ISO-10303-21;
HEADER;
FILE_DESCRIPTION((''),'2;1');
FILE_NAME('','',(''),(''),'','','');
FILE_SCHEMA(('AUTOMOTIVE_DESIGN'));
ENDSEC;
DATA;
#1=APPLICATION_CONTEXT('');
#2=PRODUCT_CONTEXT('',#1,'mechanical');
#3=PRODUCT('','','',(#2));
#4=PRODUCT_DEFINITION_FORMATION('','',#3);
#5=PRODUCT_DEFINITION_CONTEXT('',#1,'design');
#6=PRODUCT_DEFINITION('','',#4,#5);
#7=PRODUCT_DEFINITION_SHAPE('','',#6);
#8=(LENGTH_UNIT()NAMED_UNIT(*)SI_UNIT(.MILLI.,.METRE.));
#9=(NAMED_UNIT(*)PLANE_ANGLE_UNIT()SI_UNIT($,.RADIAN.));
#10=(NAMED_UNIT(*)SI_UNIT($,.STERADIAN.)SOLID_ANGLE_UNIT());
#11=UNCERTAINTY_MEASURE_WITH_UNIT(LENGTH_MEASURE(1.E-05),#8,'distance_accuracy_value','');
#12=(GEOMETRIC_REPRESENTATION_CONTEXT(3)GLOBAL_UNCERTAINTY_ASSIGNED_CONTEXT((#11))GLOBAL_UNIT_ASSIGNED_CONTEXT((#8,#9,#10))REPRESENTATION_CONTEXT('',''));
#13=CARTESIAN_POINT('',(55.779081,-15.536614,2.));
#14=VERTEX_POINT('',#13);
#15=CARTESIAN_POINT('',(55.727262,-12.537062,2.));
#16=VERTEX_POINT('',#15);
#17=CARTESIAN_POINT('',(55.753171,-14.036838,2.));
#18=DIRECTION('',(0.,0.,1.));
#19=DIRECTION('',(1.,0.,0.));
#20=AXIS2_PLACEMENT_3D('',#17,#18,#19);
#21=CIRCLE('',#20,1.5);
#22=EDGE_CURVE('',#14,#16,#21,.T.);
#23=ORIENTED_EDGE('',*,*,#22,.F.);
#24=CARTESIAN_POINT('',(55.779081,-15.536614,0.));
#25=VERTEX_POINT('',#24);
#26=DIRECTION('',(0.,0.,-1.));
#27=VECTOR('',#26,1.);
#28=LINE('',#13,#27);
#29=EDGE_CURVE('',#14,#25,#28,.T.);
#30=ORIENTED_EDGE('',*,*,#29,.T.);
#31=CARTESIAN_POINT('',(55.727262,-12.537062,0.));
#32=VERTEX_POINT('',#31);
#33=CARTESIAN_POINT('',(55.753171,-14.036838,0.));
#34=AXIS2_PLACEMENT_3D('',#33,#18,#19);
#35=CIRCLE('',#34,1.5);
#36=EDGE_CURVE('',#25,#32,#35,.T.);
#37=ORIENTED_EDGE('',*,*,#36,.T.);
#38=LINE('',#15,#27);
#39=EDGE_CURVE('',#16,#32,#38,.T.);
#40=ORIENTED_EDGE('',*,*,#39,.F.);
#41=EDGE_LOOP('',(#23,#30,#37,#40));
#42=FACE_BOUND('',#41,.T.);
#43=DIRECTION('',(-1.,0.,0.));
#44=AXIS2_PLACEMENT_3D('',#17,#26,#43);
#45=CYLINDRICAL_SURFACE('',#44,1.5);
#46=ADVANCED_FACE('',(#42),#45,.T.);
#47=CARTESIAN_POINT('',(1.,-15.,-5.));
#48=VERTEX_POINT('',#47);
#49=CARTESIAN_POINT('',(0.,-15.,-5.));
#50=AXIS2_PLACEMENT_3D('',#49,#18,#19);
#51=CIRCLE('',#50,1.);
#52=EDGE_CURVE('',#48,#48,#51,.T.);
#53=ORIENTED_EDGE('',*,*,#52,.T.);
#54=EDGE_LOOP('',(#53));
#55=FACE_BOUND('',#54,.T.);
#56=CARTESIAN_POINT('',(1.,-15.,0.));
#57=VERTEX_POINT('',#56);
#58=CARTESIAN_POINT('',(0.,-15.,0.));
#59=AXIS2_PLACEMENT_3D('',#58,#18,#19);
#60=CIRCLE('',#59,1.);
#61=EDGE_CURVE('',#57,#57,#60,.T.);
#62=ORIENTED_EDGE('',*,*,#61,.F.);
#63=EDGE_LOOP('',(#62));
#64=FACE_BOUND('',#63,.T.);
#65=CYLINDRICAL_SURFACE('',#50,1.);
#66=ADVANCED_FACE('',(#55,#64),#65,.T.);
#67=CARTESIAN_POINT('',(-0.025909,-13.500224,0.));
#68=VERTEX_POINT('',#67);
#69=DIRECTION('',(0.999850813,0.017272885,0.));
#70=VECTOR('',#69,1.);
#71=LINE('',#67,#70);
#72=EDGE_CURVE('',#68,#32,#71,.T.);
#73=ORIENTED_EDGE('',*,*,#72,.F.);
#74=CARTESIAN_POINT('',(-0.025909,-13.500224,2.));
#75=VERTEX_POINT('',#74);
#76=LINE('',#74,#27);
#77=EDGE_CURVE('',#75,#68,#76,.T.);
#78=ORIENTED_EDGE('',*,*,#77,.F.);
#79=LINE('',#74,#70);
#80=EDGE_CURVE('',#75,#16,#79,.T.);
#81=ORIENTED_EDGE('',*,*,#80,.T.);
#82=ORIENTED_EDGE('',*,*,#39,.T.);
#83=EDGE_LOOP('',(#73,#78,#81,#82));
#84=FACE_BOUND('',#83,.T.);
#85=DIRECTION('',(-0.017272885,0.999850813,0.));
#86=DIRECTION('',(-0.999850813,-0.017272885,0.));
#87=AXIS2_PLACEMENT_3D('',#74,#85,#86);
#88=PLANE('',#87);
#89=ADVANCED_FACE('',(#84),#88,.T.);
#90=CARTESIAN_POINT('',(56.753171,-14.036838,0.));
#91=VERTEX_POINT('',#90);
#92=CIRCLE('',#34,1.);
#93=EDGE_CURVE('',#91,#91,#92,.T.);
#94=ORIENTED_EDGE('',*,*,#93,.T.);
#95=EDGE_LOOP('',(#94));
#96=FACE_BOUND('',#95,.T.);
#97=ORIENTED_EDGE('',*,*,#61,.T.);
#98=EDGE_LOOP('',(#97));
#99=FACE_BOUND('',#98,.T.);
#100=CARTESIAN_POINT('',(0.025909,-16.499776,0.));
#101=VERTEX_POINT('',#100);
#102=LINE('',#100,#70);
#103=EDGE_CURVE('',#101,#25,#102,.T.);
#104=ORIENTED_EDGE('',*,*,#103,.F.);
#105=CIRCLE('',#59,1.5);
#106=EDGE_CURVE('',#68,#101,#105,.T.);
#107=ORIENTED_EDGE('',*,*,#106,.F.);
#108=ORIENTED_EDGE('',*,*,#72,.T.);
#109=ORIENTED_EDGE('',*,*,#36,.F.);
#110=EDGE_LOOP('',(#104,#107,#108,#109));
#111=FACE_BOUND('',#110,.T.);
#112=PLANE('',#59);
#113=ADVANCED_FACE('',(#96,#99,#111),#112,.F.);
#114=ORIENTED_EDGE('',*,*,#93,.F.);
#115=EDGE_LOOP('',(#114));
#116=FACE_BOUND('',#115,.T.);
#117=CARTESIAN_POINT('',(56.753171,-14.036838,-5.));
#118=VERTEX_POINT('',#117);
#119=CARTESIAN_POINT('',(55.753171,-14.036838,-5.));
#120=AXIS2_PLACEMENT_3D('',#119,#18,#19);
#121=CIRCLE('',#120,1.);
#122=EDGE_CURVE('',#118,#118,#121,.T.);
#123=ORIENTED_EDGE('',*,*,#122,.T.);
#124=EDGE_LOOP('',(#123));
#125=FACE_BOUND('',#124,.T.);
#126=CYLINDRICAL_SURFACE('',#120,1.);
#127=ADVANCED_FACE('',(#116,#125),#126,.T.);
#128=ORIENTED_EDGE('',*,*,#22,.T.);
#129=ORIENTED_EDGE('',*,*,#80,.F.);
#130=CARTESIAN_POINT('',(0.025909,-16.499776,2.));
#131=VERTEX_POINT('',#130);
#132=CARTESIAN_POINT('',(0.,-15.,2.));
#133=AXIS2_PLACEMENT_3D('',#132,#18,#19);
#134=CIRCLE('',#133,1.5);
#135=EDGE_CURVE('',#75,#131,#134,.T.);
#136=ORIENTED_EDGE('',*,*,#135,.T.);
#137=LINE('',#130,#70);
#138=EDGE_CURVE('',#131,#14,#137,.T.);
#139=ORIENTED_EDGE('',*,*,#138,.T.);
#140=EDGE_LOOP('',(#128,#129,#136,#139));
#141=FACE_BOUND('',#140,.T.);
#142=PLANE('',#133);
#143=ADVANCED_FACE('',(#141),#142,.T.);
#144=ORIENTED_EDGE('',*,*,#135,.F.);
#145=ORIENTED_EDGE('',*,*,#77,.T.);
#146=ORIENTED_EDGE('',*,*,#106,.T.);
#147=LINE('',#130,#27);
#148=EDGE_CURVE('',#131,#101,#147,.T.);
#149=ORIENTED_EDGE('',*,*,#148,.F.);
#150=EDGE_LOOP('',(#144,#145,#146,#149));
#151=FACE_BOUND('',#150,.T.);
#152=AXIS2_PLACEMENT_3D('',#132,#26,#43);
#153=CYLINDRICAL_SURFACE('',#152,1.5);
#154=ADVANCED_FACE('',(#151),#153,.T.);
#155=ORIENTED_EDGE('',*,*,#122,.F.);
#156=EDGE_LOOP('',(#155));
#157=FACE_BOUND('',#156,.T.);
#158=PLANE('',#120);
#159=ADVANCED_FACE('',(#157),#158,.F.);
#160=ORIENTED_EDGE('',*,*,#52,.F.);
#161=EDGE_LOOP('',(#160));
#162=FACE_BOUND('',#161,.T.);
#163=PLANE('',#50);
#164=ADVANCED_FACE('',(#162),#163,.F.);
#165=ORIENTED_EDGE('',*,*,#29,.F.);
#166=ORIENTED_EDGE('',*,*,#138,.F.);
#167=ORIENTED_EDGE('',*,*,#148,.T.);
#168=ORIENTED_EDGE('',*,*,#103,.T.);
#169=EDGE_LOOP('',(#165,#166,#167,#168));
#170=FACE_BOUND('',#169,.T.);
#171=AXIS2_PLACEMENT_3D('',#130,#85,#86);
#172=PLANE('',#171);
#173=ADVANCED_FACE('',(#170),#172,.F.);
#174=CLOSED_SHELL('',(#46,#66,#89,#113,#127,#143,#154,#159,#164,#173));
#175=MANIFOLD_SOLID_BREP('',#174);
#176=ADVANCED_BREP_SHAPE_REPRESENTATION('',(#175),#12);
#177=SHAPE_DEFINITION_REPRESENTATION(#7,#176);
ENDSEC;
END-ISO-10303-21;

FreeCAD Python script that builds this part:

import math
import FreeCAD as App
import Part
import Sketcher
from FreeCAD import Vector

doc = App.newDocument("Part")
body = doc.addObject("PartDesign::Body", "Body")

sketch1 = doc.addObject("Sketcher::SketchObject", "Sketch")
body.addObject(sketch1)
sketch1.AttachmentSupport = (doc.XY_Plane, [""])
sketch1.MapMode = "FlatFace"
sketch1.addGeometry([
    Part.LineSegment(Vector(55.7, -12.5, 0), Vector(0, -13.5, 0)),
    Part.ArcOfCircle(Part.Circle(Vector(0, -15, 0), Vector(0, 0, 1), 1.5), math.radians(91), math.radians(271)),
    Part.LineSegment(Vector(0, -16.5, 0), Vector(55.8, -15.5, 0)),
    Part.ArcOfCircle(Part.Circle(Vector(55.8, -14, 0), Vector(0, 0, 1), 1.5), math.radians(-89), math.radians(91)),
], False)
sketch1.addConstraint([
    Sketcher.Constraint("Tangent", 0, 2, 1, 1),
    Sketcher.Constraint("Tangent", 1, 2, 2, 1),
    Sketcher.Constraint("Tangent", 2, 2, 3, 1),
    Sketcher.Constraint("Tangent", 3, 2, 0, 1),
    Sketcher.Constraint("Equal", 1, 3),
    Sketcher.Constraint("PointOnObject", 1, 3, -2),
    Sketcher.Constraint("Radius", 1, 1.5),
    Sketcher.Constraint("DistanceY", 1, 3, -1, 1, 15.0),
    Sketcher.Constraint("Distance", 0, 55.76149),
    Sketcher.Constraint("DistanceX", -1, 1, 3, 3, 55.753171),
])
pad1 = doc.addObject("PartDesign::Pad", "Pad")
body.addObject(pad1)
pad1.Profile = sketch1
pad1.Length = 2

sketch2 = doc.addObject("Sketcher::SketchObject", "Sketch001")
body.addObject(sketch2)
sketch2.AttachmentSupport = (doc.XY_Plane, [""])
sketch2.MapMode = "FlatFace"
sketch2.addGeometry([
    Part.Circle(Vector(0, -15, 0), Vector(0, 0, 1), 1),
    Part.Circle(Vector(55.8, -14, 0), Vector(0, 0, 1), 1),
], False)
sketch2.addConstraint([
    Sketcher.Constraint("Equal", 0, 1),
    Sketcher.Constraint("PointOnObject", 0, 3, -2),
    Sketcher.Constraint("Diameter", 0, 2.0),
    Sketcher.Constraint("DistanceY", 0, 3, -1, 1, 15.0),
    Sketcher.Constraint("DistanceX", -1, 1, 1, 3, 55.753171),
    Sketcher.Constraint("DistanceY", 1, 3, -1, 1, 14.036838),
])
pad2 = doc.addObject("PartDesign::Pad", "Pad001")
body.addObject(pad2)
pad2.Profile = sketch2
pad2.Length = 5
pad2.Reversed = True

doc.recompute()
